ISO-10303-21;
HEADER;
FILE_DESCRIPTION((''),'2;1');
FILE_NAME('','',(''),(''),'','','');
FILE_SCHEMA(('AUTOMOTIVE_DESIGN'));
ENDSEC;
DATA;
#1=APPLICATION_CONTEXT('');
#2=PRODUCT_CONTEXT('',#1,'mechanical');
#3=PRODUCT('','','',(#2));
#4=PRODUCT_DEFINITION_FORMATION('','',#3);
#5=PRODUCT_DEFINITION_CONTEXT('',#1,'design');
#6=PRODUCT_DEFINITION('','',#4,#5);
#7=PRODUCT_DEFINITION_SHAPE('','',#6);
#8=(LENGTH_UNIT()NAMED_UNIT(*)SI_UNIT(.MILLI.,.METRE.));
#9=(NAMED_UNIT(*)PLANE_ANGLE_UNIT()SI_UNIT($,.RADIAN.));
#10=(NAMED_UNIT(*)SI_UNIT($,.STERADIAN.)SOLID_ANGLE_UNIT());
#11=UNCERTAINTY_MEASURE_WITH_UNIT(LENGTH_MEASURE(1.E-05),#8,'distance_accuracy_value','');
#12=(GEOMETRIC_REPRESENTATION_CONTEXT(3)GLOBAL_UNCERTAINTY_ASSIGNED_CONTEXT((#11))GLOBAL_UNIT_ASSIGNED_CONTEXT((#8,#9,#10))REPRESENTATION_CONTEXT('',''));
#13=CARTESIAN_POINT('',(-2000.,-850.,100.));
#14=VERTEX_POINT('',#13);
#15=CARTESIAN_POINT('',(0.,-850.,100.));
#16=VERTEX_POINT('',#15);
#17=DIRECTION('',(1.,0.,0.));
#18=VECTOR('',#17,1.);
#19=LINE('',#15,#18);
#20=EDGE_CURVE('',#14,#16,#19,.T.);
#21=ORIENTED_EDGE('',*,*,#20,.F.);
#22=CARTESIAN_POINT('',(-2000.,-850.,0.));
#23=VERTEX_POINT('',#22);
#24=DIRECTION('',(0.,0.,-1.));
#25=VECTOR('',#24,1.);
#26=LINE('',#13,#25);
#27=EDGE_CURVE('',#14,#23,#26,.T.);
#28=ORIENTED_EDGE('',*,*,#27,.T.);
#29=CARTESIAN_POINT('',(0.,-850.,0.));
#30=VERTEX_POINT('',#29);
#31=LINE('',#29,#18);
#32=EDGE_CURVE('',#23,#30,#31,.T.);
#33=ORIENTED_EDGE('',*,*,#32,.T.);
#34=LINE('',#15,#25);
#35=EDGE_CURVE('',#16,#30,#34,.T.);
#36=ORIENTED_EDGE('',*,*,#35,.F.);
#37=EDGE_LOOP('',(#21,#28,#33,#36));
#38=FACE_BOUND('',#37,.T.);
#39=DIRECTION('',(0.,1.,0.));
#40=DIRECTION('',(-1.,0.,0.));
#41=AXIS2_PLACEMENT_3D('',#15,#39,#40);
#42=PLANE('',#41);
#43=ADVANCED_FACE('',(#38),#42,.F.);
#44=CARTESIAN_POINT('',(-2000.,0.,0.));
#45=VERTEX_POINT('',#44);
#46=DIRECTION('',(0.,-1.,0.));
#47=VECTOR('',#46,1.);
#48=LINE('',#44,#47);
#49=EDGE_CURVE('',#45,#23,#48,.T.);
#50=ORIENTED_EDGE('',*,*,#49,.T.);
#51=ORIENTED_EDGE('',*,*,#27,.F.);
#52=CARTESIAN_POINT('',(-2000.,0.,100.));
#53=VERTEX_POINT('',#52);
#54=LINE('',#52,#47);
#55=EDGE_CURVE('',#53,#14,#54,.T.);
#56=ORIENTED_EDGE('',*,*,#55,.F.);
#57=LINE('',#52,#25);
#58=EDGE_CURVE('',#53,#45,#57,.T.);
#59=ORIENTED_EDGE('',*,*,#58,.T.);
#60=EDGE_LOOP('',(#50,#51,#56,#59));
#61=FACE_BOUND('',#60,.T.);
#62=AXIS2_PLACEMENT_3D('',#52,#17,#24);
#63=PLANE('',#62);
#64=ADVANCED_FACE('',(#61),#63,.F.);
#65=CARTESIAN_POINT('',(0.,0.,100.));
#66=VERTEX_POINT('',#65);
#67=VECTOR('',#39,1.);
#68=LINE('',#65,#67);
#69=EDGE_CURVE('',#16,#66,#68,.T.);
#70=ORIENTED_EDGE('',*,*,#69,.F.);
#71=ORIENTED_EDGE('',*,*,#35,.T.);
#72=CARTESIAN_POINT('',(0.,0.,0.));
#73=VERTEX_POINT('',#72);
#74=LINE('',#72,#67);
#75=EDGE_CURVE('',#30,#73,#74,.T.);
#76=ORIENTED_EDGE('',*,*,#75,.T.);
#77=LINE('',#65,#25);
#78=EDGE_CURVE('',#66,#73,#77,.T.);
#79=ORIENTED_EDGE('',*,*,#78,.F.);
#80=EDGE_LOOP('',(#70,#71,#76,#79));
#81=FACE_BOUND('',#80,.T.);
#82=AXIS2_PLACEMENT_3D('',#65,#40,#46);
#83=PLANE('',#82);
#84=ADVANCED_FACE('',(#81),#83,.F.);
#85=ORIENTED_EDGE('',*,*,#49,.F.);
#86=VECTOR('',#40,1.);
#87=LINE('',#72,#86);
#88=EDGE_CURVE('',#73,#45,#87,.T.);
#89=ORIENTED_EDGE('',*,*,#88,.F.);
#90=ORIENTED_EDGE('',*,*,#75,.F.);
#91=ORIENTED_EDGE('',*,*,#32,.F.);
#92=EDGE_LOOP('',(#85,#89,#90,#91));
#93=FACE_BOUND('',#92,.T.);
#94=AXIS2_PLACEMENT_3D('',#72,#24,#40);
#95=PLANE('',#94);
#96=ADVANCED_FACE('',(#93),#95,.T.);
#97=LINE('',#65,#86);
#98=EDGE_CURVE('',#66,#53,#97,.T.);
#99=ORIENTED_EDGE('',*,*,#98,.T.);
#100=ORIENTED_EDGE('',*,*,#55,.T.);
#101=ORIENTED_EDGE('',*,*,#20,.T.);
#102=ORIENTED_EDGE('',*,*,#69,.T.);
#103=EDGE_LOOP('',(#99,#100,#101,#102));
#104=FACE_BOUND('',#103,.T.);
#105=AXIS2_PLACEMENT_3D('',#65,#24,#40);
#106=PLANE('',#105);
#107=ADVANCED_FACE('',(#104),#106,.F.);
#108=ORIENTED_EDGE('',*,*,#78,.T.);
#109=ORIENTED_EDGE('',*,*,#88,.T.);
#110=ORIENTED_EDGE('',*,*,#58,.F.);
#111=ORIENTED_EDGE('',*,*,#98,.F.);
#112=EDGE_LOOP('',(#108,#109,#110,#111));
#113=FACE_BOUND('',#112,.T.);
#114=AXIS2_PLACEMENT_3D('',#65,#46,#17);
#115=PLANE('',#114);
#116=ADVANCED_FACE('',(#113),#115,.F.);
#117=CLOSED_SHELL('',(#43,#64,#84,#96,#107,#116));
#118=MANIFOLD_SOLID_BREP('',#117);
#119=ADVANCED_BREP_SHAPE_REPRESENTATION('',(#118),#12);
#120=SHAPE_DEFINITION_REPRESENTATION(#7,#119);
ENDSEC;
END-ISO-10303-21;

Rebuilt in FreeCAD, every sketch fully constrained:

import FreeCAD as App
import Part
import Sketcher
Q = App.Units.Quantity

doc = App.newDocument("Part")
body = doc.addObject("PartDesign::Body", "Body")

# Sketch on XY plane
sketch1 = body.newObject("Sketcher::SketchObject", "Sketch")
sketch1.AttachmentSupport = (doc.getObject("XY_Plane"), [""])
sketch1.MapMode = "FlatFace"
sketch1.addGeometry([
    Part.LineSegment(App.Vector(-2000, 0, 0), App.Vector(-2000, -850, 0)),
    Part.LineSegment(App.Vector(-2000, -850, 0), App.Vector(0, -850, 0)),
    Part.LineSegment(App.Vector(0, -850, 0), App.Vector(0, 0, 0)),
    Part.LineSegment(App.Vector(0, 0, 0), App.Vector(-2000, 0, 0)),
], False)
sketch1.addConstraint([
    Sketcher.Constraint("Coincident", 0, 2, 1, 1),
    Sketcher.Constraint("Coincident", 1, 2, 2, 1),
    Sketcher.Constraint("Coincident", 2, 2, 3, 1),
    Sketcher.Constraint("Coincident", 3, 2, 0, 1),
    Sketcher.Constraint("Vertical", 0),
    Sketcher.Constraint("Horizontal", 1),
    Sketcher.Constraint("Vertical", 2),
    Sketcher.Constraint("Horizontal", 3),
    Sketcher.Constraint("Coincident", 2, 2, -1, 1),
    Sketcher.Constraint("DistanceX", 1, 1, 1, 2, Q("2000 mm")),
    Sketcher.Constraint("DistanceY", 0, 2, 0, 1, Q("850 mm")),
])
pad1 = body.newObject("PartDesign::Pad", "Pad")
pad1.Profile = sketch1
pad1.Length = 100

doc.recompute()
